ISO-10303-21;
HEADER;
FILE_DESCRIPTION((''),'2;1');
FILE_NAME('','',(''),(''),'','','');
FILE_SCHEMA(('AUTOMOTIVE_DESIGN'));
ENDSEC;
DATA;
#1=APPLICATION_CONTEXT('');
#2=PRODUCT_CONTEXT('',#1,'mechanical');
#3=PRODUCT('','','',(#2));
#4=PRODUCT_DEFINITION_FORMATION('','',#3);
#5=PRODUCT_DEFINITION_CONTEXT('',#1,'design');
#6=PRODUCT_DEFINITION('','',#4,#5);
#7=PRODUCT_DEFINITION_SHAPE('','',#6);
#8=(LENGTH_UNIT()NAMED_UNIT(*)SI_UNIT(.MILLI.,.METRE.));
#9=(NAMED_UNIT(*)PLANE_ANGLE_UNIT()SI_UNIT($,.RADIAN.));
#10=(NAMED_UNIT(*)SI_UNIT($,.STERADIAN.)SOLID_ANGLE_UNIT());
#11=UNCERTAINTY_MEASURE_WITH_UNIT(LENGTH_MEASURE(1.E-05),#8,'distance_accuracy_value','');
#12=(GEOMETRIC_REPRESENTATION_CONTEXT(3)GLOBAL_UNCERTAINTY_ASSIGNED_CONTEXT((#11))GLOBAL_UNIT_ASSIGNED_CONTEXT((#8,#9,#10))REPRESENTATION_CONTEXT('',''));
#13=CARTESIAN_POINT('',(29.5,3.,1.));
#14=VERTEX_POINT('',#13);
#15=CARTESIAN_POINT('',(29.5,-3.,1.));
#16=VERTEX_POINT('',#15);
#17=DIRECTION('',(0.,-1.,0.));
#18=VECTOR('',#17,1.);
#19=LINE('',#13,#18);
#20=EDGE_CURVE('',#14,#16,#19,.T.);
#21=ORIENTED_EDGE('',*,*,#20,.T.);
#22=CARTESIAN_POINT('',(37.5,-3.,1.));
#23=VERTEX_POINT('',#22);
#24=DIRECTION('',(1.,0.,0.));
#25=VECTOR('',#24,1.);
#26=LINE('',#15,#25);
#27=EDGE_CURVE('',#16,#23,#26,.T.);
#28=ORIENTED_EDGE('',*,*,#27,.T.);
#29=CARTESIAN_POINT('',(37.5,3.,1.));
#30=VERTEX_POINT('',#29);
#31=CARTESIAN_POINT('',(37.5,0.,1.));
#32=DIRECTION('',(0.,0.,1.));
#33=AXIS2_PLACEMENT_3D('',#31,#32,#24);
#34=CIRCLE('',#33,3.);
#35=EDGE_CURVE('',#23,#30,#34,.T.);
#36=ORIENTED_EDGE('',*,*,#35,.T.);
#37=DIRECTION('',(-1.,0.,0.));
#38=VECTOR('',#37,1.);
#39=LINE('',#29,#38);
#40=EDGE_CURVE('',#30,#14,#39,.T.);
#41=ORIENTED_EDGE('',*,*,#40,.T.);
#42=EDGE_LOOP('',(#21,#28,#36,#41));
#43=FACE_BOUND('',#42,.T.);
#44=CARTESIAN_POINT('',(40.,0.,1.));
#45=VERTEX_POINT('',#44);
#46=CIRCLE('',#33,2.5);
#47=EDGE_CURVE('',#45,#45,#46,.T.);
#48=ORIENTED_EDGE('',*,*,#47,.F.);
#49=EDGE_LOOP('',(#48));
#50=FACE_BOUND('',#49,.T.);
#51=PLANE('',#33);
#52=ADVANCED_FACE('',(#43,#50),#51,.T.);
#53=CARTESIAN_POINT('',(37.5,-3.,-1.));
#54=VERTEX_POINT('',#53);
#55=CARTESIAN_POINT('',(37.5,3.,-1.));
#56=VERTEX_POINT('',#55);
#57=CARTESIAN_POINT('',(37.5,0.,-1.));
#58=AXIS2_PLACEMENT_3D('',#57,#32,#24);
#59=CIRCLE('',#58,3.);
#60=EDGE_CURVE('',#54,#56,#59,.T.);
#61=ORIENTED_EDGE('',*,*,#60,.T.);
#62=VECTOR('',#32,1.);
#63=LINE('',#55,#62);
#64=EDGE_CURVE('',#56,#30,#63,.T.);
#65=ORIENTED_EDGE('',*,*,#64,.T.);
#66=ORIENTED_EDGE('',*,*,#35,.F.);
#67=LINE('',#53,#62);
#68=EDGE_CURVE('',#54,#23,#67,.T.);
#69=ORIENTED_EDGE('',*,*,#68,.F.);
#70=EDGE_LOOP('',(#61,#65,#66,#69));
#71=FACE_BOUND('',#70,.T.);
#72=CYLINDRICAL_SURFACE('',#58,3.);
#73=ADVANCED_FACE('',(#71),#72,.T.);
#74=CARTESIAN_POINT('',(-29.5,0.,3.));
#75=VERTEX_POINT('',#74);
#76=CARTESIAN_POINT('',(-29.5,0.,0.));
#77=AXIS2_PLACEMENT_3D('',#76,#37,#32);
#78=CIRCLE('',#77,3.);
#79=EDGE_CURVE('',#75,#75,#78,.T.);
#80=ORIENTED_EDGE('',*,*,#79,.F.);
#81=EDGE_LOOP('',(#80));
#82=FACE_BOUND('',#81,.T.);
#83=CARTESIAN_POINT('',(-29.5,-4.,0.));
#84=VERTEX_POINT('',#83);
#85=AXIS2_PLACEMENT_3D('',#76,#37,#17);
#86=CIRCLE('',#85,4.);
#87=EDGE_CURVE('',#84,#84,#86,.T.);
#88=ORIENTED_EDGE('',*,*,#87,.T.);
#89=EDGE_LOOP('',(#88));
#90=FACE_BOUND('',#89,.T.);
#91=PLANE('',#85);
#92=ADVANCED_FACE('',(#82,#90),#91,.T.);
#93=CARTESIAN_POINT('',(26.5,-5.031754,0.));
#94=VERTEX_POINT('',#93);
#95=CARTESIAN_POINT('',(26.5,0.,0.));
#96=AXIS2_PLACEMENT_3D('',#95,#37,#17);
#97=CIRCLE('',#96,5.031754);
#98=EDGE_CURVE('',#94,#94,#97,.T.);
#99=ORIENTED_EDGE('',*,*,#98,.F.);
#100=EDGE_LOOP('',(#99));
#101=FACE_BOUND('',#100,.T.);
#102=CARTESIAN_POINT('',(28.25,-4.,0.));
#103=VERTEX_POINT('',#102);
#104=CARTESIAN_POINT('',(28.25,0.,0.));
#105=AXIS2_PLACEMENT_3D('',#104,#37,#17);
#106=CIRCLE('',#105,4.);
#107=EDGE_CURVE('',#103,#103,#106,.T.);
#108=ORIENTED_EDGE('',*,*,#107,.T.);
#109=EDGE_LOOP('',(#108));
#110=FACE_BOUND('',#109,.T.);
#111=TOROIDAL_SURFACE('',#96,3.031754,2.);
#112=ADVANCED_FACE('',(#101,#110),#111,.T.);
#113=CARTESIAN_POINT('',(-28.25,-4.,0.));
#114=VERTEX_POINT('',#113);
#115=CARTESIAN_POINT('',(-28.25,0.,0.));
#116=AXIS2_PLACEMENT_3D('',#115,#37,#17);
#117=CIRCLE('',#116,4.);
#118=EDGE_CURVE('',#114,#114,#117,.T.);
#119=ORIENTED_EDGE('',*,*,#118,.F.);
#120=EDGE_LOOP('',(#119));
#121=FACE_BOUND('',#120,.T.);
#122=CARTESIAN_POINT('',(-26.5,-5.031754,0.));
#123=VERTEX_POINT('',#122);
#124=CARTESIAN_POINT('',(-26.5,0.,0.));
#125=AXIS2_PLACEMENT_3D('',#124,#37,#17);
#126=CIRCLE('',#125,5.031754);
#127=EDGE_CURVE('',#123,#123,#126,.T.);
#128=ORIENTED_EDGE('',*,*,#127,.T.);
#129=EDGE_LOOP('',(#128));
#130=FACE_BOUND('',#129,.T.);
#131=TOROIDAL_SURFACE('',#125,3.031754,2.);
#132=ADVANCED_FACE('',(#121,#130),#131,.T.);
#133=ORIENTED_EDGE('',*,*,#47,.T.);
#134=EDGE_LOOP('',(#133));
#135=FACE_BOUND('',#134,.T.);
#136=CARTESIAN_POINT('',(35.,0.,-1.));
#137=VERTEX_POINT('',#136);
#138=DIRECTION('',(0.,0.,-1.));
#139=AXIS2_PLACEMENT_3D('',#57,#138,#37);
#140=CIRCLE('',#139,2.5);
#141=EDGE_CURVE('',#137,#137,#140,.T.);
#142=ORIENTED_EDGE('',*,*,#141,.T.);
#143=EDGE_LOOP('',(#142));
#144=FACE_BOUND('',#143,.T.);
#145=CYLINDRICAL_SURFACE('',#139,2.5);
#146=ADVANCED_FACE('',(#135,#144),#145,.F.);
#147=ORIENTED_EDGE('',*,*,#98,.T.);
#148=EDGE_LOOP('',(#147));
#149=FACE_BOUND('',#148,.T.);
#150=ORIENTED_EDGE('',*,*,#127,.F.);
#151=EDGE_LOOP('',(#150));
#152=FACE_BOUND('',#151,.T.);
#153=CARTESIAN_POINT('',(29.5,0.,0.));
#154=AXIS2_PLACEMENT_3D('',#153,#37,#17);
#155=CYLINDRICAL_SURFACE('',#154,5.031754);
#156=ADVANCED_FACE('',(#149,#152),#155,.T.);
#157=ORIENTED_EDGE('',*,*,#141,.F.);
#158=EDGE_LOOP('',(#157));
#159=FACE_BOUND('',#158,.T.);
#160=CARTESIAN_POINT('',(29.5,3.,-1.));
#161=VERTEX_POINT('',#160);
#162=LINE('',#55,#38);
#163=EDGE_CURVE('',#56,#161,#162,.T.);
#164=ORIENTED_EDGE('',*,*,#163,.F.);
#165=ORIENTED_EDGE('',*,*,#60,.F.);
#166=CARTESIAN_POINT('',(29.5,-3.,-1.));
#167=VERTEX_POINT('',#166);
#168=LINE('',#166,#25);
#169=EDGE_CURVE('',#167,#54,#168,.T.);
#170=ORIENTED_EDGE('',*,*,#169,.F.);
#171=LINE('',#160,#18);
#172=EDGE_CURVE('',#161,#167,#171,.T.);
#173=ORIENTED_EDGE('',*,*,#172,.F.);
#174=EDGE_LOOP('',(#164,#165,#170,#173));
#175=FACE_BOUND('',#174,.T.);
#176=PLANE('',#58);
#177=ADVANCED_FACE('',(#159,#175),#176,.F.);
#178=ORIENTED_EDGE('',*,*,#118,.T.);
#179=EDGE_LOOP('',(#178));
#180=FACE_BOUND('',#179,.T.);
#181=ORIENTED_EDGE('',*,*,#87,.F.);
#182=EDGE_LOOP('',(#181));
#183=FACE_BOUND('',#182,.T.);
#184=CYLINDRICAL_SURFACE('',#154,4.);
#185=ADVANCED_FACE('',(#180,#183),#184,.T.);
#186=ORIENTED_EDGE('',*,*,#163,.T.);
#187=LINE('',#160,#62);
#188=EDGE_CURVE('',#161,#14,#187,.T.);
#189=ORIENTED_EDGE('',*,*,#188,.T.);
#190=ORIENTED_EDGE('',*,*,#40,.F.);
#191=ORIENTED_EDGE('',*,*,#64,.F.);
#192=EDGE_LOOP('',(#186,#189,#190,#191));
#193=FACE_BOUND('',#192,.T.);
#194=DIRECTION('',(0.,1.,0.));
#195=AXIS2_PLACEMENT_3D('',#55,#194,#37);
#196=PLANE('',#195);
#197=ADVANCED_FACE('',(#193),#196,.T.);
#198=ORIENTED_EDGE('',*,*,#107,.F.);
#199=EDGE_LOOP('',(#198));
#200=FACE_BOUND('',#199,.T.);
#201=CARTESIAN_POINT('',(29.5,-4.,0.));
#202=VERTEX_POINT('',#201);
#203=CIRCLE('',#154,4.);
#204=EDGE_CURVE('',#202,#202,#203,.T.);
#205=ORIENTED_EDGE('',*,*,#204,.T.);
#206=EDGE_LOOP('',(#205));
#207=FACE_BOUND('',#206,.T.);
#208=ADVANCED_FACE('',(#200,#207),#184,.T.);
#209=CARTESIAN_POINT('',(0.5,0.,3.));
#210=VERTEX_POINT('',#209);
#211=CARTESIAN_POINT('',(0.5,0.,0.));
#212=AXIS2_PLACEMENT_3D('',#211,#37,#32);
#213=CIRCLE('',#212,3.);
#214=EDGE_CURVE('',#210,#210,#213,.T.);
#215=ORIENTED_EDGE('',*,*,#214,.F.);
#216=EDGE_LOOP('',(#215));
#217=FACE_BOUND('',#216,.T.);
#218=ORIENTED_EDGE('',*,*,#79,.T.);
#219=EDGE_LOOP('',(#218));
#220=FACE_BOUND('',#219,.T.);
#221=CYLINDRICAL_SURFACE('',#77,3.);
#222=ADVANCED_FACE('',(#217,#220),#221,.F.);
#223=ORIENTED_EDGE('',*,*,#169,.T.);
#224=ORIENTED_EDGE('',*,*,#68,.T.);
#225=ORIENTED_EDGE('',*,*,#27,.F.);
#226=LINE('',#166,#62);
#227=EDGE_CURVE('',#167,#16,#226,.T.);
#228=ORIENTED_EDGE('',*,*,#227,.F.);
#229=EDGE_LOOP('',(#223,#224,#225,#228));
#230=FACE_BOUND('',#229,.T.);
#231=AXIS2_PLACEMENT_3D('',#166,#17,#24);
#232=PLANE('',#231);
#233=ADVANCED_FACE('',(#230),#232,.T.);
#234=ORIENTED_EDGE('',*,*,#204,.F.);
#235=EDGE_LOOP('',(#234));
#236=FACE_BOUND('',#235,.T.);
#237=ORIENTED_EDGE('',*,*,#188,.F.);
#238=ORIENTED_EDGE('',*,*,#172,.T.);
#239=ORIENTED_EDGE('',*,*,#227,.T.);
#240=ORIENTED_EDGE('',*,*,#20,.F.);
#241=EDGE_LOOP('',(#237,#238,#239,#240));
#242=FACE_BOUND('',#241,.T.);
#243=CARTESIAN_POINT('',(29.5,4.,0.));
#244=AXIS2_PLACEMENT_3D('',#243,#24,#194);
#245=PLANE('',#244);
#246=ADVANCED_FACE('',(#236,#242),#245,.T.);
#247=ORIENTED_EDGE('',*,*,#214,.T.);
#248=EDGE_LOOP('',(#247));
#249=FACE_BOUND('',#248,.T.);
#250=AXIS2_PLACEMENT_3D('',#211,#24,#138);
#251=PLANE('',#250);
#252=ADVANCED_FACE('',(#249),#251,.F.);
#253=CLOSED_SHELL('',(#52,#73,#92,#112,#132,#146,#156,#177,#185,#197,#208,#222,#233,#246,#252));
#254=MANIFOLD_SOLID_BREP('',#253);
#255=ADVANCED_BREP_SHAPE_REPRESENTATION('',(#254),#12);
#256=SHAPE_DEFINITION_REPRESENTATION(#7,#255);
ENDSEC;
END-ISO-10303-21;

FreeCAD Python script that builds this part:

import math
import FreeCAD as App
import Part
import Sketcher

V = App.Vector
Q = App.Units.Quantity

doc = App.newDocument("Part")
params = doc.addObject("Spreadsheet::Sheet", "Params")
for row, (alias, value) in enumerate([
    ("sketch1_radius", "2 mm"),
    ("sketch1_width", "59 mm"),
    ("sketch1_width2", "53 mm"),
    ("sketch1_height", "4 mm"),
    ("sketch1_width3", "1.25 mm"),
    ("revolution_angle", "360 deg"),
    ("sketch2_radius", "3 mm"),
    ("sketch2_width", "8 mm"),
    ("pad1_length", "2 mm"),
    ("sketch3_diameter", "6 mm"),
    ("hole_diameter", "6 mm"),
    ("hole_depth", "30 mm"),
    ("sketch4_diameter", "5 mm"),
    ("hole2_diameter", "5 mm"),
    ("hole2_depth", "6.031754 mm"),
], start=1):
    params.set(f"A{row}", alias)
    params.set(f"B{row}", "=" + value)
    params.setAlias(f"B{row}", alias)

body = doc.addObject("PartDesign::Body", "Body")

# Sketch on XY plane
sketch1 = doc.addObject("Sketcher::SketchObject", "Sketch")
body.addObject(sketch1)
sketch1.AttachmentSupport = (doc.XY_Plane, [""])
sketch1.MapMode = "FlatFace"
sketch1.addGeometry([
    Part.LineSegment(V(29.5, 4, 0), V(29.5, 0, 0)),  # 0
    Part.LineSegment(V(29.5, 0, 0), V(-29.5, 0, 0)),  # 1
    Part.LineSegment(V(-29.5, 0, 0), V(-29.5, 4, 0)),  # 2
    Part.LineSegment(V(-29.5, 4, 0), V(-28.2, 4, 0)),  # 3
    Part.ArcOfCircle(Part.Circle(V(-26.5, 3, 0), V(0, 0, 1), 2), math.radians(90), math.radians(151)),  # 4
    Part.LineSegment(V(-26.5, 5, 0), V(26.5, 5, 0)),  # 5
    Part.ArcOfCircle(Part.Circle(V(26.5, 3, 0), V(0, 0, 1), 2), math.radians(29), math.radians(90)),  # 6
    Part.LineSegment(V(28.2, 4, 0), V(29.5, 4, 0)),  # 7
], False)
sketch1.addConstraint([
    Sketcher.Constraint("Coincident", 0, 2, 1, 1),
    Sketcher.Constraint("Coincident", 1, 2, 2, 1),
    Sketcher.Constraint("Coincident", 2, 2, 3, 1),
    Sketcher.Constraint("Coincident", 3, 2, 4, 2),
    Sketcher.Constraint("Tangent", 4, 1, 5, 1),
    Sketcher.Constraint("Tangent", 5, 2, 6, 2),
    Sketcher.Constraint("Coincident", 6, 1, 7, 1),
    Sketcher.Constraint("Coincident", 7, 2, 0, 1),
    Sketcher.Constraint("Vertical", 0),
    Sketcher.Constraint("Horizontal", 1),
    Sketcher.Constraint("Vertical", 2),
    Sketcher.Constraint("Horizontal", 3),
    Sketcher.Constraint("Horizontal", 5),
    Sketcher.Constraint("Horizontal", 7),
    Sketcher.Constraint("Equal", 4, 6),
    Sketcher.Constraint("Symmetric", 0, 2, 1, 2, -1, 1),
    Sketcher.Constraint("Symmetric", 3, 2, 6, 1, -2),
    Sketcher.Constraint("Radius", 4, Q("2 mm")),
    Sketcher.Constraint("DistanceX", 1, 2, 1, 1, Q("59 mm")),
    Sketcher.Constraint("DistanceX", 5, 1, 5, 2, Q("53 mm")),
    Sketcher.Constraint("DistanceY", 0, 2, 0, 1, Q("4 mm")),
    Sketcher.Constraint("DistanceX", 3, 1, 3, 2, Q("1.25 mm")),
])
sketch1.setExpression("Constraints[17]", "Params.sketch1_radius")
sketch1.setExpression("Constraints[18]", "Params.sketch1_width")
sketch1.setExpression("Constraints[19]", "Params.sketch1_width2")
sketch1.setExpression("Constraints[20]", "Params.sketch1_height")
sketch1.setExpression("Constraints[21]", "Params.sketch1_width3")
revolution = doc.addObject("PartDesign::Revolution", "Revolution")
body.addObject(revolution)
revolution.Profile = sketch1
revolution.ReferenceAxis = (sketch1, ["H_Axis"])
revolution.setExpression("Angle", "Params.revolution_angle")

# Sketch on XY plane
sketch2 = doc.addObject("Sketcher::SketchObject", "Sketch001")
body.addObject(sketch2)
sketch2.AttachmentSupport = (doc.XY_Plane, [""])
sketch2.MapMode = "FlatFace"
sketch2.AttachmentOffset = App.Placement(V(0, 0, 1), App.Rotation())
sketch2.addGeometry([
    Part.LineSegment(V(37.5, 3, 0), V(29.5, 3, 0)),
    Part.LineSegment(V(29.5, 3, 0), V(29.5, -3, 0)),
    Part.LineSegment(V(29.5, -3, 0), V(37.5, -3, 0)),
    Part.ArcOfCircle(Part.Circle(V(37.5, 0, 0), V(0, 0, 1), 3), math.radians(-90), math.radians(90)),
], False)
sketch2.addConstraint([
    Sketcher.Constraint("Coincident", 0, 2, 1, 1),
    Sketcher.Constraint("Coincident", 1, 2, 2, 1),
    Sketcher.Constraint("Tangent", 2, 2, 3, 1),
    Sketcher.Constraint("Tangent", 3, 2, 0, 1),
    Sketcher.Constraint("Horizontal", 0),
    Sketcher.Constraint("Vertical", 1),
    Sketcher.Constraint("Horizontal", 2),
    Sketcher.Constraint("PointOnObject", 3, 3, -1),
    Sketcher.Constraint("Radius", 3, Q("3 mm")),
    Sketcher.Constraint("DistanceX", 0, 2, 0, 1, Q("8 mm")),
    Sketcher.Constraint("DistanceX", -1, 1, 3, 3, Q("37.5 mm")),
])
sketch2.setExpression("Constraints[8]", "Params.sketch2_radius")
sketch2.setExpression("Constraints[9]", "Params.sketch2_width")
pad1 = doc.addObject("PartDesign::Pad", "Pad")
body.addObject(pad1)
pad1.Profile = sketch2
pad1.setExpression("Length", "Params.pad1_length")
pad1.Reversed = True

# Sketch on YZ plane
sketch3 = doc.addObject("Sketcher::SketchObject", "Sketch002")
body.addObject(sketch3)
sketch3.AttachmentSupport = (doc.YZ_Plane, [""])
sketch3.MapMode = "FlatFace"
sketch3.AttachmentOffset = App.Placement(V(0, 0, -29.5), App.Rotation())
sketch3.addGeometry(Part.Circle(V(0, 0, 0), V(0, 0, 1), 3), False)
sketch3.addConstraint([
    Sketcher.Constraint("Coincident", 0, 3, -1, 1),
    Sketcher.Constraint("Diameter", 0, Q("6 mm")),
])
sketch3.setExpression("Constraints[1]", "Params.sketch3_diameter")
doc.recompute()
hole = doc.addObject("PartDesign::Hole", "Hole")
body.addObject(hole)
hole.Profile = sketch3
hole.ThreadType = "None"
hole.setExpression("Diameter", "Params.hole_diameter")
hole.DepthType = "Dimension"
hole.setExpression("Depth", "Params.hole_depth")
hole.DrillPoint = "Flat"
hole.Reversed = True

# Sketch on XY plane
sketch4 = doc.addObject("Sketcher::SketchObject", "Sketch003")
body.addObject(sketch4)
sketch4.AttachmentSupport = (doc.XY_Plane, [""])
sketch4.MapMode = "FlatFace"
sketch4.AttachmentOffset = App.Placement(V(0, 0, -1), App.Rotation())
sketch4.addGeometry(Part.Circle(V(37.5, 0, 0), V(0, 0, 1), 2.5), False)
sketch4.addConstraint([
    Sketcher.Constraint("PointOnObject", 0, 3, -1),
    Sketcher.Constraint("Diameter", 0, Q("5 mm")),
    Sketcher.Constraint("DistanceX", -1, 1, 0, 3, Q("37.5 mm")),
])
sketch4.setExpression("Constraints[1]", "Params.sketch4_diameter")
doc.recompute()
hole2 = doc.addObject("PartDesign::Hole", "Hole001")
body.addObject(hole2)
hole2.Profile = sketch4
hole2.ThreadType = "None"
hole2.setExpression("Diameter", "Params.hole2_diameter")
hole2.DepthType = "Dimension"
hole2.setExpression("Depth", "Params.hole2_depth")
hole2.DrillPoint = "Flat"
hole2.Reversed = True

doc.recompute()
